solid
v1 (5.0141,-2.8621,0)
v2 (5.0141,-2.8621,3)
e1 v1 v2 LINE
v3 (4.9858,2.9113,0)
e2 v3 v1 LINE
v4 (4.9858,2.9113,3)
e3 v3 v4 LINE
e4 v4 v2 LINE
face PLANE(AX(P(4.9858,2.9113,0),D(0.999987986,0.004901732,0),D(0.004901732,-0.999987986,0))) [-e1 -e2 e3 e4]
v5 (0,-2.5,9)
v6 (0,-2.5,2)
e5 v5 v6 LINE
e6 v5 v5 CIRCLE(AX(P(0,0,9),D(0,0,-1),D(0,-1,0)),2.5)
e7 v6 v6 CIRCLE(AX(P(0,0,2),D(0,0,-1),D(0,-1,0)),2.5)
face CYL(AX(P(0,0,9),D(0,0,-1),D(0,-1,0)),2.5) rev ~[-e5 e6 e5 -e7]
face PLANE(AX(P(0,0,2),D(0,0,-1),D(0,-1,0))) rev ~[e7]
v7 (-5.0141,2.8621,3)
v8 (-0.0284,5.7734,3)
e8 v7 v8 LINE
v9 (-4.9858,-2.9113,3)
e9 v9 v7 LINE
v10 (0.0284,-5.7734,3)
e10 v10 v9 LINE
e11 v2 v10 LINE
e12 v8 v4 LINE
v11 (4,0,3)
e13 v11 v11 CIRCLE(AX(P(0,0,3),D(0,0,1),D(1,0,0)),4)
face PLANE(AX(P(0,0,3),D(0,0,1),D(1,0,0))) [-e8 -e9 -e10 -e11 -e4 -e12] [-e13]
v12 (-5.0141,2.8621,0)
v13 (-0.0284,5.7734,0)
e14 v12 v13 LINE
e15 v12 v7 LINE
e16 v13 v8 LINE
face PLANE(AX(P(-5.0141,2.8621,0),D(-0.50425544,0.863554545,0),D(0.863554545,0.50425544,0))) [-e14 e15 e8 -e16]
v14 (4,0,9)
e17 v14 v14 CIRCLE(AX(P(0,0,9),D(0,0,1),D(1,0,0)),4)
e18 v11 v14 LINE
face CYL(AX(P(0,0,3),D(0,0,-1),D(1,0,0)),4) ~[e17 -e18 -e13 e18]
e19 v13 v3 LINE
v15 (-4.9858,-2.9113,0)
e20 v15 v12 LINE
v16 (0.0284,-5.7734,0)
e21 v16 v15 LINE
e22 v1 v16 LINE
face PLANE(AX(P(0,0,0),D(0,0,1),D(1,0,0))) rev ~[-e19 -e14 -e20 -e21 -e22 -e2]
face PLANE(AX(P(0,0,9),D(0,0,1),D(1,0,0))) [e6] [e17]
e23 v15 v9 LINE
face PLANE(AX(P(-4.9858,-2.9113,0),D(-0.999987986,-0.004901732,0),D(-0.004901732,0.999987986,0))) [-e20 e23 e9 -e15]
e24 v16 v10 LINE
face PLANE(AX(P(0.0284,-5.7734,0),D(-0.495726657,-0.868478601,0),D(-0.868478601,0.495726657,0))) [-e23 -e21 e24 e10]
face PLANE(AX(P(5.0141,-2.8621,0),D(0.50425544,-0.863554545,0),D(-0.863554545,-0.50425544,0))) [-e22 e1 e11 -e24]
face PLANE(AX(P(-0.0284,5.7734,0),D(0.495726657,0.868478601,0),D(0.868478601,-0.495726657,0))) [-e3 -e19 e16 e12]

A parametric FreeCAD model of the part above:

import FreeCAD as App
import Part
import Sketcher

V = App.Vector
Q = App.Units.Quantity

doc = App.newDocument("Part")
body = doc.addObject("PartDesign::Body", "Body")

# Sketch on XY plane
sketch1 = body.newObject("Sketcher::SketchObject", "Sketch")
sketch1.AttachmentSupport = (doc.getObject("XY_Plane"), [""])
sketch1.MapMode = "FlatFace"
sketch1.addGeometry(Part.LineSegment(V(0, -6, 0), V(5, -3, 0)), False)
sketch1.addGeometry(Part.LineSegment(V(5, -3, 0), V(5, 3, 0)), False)
sketch1.addGeometry(Part.LineSegment(V(5, 3, 0), V(0, 6, 0)), False)
sketch1.addGeometry(Part.LineSegment(V(0, 6, 0), V(-5, 3, 0)), False)
sketch1.addGeometry(Part.LineSegment(V(-5, 3, 0), V(-5, -3, 0)), False)
sketch1.addGeometry(Part.LineSegment(V(-5, -3, 0), V(0, -6, 0)), False)
sketch1.addConstraint(Sketcher.Constraint("Coincident", 0, 2, 1, 1))
sketch1.addConstraint(Sketcher.Constraint("Coincident", 1, 2, 2, 1))
sketch1.addConstraint(Sketcher.Constraint("Coincident", 2, 2, 3, 1))
sketch1.addConstraint(Sketcher.Constraint("Coincident", 3, 2, 4, 1))
sketch1.addConstraint(Sketcher.Constraint("Coincident", 4, 2, 5, 1))
sketch1.addConstraint(Sketcher.Constraint("Coincident", 5, 2, 0, 1))
sketch1.addConstraint(Sketcher.Constraint("Symmetric", 0, 2, 3, 2, -1, 1))
sketch1.addConstraint(Sketcher.Constraint("Symmetric", 1, 2, 4, 2, -1, 1))
sketch1.addConstraint(Sketcher.Constraint("Symmetric", 2, 2, 5, 2, -1, 1))
sketch1.addConstraint(Sketcher.Constraint("Equal", 0, 1))
sketch1.addConstraint(Sketcher.Constraint("Equal", 1, 2))
sketch1.addConstraint(Sketcher.Constraint("DistanceX", 3, 2, 1, 2, Q("10 mm")))
sketch1.addConstraint(Sketcher.Constraint("Angle", 1, Q("90.2808 deg")))
sketch1.addConstraint(Sketcher.Constraint("DistanceY", 0, 2, -1, 1, Q("2.862 mm")))
sketch1.addConstraint(Sketcher.Constraint("DistanceY", 1, 2, 2, 2, Q("2.862 mm")))
pad1 = body.newObject("PartDesign::Pad", "Pad")
pad1.Profile = sketch1
pad1.Length = 3

# Sketch on XY plane
sketch2 = body.newObject("Sketcher::SketchObject", "Sketch001")
sketch2.AttachmentSupport = (doc.getObject("XY_Plane"), [""])
sketch2.MapMode = "FlatFace"
sketch2.AttachmentOffset = App.Placement(V(0, 0, 3), App.Rotation())
sketch2.addGeometry(Part.Circle(V(0, 0, 0), V(0, 0, 1), 4), False)
sketch2.addConstraint(Sketcher.Constraint("Coincident", 0, 3, -1, 1))
sketch2.addConstraint(Sketcher.Constraint("Diameter", 0, Q("8 mm")))
pad2 = body.newObject("PartDesign::Pad", "Pad001")
pad2.Profile = sketch2
pad2.Length = 6

# Sketch on XY plane
sketch3 = body.newObject("Sketcher::SketchObject", "Sketch002")
sketch3.AttachmentSupport = (doc.getObject("XY_Plane"), [""])
sketch3.MapMode = "FlatFace"
sketch3.AttachmentOffset = App.Placement(V(0, 0, 9), App.Rotation())
sketch3.addGeometry(Part.Circle(V(0, 0, 0), V(0, 0, 1), 2.5), False)
sketch3.addConstraint(Sketcher.Constraint("Coincident", 0, 3, -1, 1))
sketch3.addConstraint(Sketcher.Constraint("Diameter", 0, Q("5 mm")))
doc.recompute()
hole = body.newObject("PartDesign::Hole", "Hole")
hole.Profile = sketch3
hole.ThreadType = "None"
hole.Diameter = 5
hole.DepthType = "Dimension"
hole.Depth = 7
hole.DrillPoint = "Flat"

doc.recompute()
